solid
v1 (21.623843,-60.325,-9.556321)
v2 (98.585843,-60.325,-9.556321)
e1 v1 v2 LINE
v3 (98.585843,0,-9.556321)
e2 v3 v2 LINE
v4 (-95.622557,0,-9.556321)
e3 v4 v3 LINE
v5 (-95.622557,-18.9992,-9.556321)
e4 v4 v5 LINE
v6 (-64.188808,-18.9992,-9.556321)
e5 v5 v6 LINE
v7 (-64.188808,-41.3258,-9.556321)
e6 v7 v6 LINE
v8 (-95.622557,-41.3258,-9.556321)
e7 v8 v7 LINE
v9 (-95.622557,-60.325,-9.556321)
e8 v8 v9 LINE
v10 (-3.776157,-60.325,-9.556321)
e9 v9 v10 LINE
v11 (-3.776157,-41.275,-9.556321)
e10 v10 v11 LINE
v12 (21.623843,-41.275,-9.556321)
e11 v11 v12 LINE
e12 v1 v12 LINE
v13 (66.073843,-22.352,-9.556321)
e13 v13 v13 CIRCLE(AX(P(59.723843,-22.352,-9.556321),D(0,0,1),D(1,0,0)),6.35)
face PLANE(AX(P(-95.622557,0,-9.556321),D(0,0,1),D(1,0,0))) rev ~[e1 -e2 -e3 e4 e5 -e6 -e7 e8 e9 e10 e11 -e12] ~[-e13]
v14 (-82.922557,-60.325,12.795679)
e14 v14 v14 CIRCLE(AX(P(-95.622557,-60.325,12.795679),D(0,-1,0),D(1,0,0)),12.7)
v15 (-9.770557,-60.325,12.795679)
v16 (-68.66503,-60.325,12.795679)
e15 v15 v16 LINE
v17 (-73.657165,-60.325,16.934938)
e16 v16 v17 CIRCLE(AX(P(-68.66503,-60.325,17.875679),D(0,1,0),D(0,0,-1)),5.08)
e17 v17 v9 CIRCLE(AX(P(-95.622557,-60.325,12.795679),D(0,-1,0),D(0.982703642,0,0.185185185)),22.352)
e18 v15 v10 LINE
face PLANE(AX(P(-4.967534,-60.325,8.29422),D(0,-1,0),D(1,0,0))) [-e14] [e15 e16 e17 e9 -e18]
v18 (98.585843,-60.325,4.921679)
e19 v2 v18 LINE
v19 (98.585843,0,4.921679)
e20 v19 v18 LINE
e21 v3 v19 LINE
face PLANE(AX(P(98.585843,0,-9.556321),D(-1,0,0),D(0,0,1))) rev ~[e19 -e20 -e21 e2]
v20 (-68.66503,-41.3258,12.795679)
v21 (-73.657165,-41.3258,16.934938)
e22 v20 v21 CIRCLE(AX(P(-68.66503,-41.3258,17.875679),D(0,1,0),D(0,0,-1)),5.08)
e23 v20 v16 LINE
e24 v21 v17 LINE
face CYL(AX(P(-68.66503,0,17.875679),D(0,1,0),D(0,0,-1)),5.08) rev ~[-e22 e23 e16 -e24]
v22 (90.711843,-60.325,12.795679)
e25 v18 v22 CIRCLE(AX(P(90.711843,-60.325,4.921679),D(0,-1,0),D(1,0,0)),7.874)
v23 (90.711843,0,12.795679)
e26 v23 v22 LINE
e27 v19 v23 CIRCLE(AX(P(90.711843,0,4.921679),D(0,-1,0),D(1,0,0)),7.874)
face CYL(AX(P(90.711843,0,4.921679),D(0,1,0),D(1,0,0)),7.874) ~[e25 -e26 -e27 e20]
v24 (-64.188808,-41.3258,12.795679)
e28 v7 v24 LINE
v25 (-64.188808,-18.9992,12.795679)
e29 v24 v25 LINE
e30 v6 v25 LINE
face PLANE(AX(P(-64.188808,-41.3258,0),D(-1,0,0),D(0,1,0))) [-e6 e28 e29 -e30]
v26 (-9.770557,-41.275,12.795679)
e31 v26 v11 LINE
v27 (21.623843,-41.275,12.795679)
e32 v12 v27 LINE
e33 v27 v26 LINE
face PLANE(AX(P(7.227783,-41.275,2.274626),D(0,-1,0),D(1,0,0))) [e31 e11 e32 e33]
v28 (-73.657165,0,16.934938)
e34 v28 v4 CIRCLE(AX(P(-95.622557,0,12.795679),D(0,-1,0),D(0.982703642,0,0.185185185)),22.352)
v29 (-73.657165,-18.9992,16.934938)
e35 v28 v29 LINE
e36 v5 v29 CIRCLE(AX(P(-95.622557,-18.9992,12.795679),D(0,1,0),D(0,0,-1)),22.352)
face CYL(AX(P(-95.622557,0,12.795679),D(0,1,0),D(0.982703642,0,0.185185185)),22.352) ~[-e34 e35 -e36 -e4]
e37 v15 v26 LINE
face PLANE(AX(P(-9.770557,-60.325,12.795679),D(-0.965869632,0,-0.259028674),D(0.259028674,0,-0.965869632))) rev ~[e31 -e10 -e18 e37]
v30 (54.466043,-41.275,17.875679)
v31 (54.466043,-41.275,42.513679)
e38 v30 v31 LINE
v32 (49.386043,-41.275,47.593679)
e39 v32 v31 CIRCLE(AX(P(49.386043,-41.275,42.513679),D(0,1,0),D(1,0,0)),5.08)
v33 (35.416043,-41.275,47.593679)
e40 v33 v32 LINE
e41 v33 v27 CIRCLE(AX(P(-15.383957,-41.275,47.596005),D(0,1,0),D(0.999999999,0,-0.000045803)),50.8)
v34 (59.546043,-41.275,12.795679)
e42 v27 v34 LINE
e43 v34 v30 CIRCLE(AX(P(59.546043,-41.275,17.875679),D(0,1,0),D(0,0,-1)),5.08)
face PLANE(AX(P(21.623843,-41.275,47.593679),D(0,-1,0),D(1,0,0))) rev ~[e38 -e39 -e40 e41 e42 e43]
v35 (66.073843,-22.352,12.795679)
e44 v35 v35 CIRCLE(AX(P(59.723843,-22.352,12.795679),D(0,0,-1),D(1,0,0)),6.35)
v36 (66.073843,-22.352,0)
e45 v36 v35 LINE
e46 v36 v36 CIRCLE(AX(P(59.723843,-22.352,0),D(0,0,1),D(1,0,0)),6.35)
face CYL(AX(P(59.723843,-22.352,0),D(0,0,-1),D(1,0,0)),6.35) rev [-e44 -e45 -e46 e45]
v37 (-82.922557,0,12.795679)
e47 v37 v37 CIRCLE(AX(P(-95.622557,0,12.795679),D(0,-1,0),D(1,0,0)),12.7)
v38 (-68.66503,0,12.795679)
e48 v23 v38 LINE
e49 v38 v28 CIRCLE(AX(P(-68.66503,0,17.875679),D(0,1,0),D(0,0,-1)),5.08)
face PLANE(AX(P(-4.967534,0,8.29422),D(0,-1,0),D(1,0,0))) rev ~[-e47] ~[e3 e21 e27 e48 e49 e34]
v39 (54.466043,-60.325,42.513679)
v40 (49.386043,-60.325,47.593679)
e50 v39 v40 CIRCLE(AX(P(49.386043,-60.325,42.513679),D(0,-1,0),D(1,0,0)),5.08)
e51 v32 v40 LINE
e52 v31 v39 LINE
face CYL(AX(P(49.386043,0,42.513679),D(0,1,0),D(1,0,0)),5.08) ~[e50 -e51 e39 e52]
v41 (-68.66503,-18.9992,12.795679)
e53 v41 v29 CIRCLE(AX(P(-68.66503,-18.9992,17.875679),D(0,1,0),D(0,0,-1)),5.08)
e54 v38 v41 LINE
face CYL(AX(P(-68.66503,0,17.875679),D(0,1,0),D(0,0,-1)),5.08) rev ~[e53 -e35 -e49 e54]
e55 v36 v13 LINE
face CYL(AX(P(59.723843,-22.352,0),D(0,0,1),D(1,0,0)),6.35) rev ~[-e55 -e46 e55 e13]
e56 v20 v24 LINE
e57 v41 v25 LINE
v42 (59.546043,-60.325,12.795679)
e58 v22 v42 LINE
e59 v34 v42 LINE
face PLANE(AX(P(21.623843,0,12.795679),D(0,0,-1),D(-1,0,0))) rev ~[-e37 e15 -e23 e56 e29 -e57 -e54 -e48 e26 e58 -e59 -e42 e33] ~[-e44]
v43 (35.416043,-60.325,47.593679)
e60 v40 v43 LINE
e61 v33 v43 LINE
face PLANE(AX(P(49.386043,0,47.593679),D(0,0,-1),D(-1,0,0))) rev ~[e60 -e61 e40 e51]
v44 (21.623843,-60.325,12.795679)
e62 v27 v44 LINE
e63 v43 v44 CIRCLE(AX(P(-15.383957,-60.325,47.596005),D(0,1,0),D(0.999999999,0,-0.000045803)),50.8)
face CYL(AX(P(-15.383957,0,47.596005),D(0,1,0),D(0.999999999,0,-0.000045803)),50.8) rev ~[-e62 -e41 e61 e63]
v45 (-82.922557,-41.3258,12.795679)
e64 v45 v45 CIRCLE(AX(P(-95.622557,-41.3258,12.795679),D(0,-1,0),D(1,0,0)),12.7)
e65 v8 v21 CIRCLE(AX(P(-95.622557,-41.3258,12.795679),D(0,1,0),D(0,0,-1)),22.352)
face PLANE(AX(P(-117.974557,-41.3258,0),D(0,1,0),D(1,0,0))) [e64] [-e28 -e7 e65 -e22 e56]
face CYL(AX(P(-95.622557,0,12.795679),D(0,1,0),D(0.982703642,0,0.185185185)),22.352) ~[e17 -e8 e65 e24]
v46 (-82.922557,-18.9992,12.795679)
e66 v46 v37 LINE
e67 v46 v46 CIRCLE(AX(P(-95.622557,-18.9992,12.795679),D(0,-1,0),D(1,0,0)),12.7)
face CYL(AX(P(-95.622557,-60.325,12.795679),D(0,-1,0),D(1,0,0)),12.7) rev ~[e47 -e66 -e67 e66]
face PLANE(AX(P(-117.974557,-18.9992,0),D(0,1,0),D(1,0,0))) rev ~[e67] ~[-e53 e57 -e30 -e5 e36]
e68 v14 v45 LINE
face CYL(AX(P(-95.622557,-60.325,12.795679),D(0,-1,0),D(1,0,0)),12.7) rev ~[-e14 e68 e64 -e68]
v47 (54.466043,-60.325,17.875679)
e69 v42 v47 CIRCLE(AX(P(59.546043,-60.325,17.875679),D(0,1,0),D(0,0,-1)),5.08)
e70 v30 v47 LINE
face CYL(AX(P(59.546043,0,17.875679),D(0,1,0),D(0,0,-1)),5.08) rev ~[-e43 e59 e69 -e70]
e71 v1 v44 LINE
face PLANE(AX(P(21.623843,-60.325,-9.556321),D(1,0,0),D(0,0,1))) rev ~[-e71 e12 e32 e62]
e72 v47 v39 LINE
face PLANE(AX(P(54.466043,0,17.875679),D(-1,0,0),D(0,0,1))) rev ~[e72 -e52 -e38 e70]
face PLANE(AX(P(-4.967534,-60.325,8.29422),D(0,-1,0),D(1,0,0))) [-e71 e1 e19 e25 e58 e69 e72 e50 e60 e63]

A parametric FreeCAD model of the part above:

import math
import FreeCAD as App
import Part
import Sketcher

V = App.Vector
Q = App.Units.Quantity

doc = App.newDocument("Part")
body = doc.addObject("PartDesign::Body", "Body")

sketch1 = body.newObject("Sketcher::SketchObject", "Sketch")
sketch1.AttachmentSupport = (doc.getObject("XZ_Plane"), [""])
sketch1.MapMode = "FlatFace"
sketch1.addGeometry([
    Part.ArcOfCircle(Part.Circle(V(-68.66503, 17.875679, 0), V(0, 0, 1), 5.08), math.radians(-169.328071), math.radians(-90)),
    Part.ArcOfCircle(Part.Circle(V(-95.622557, 12.795679, 0), V(0, 0, 1), 22.352), math.radians(10.671929), math.radians(270)),
    Part.LineSegment(V(-95.622557, -9.556321, 0), V(98.585843, -9.556321, 0)),
    Part.LineSegment(V(98.585843, -9.556321, 0), V(98.585843, 4.921679, 0)),
    Part.ArcOfCircle(Part.Circle(V(90.711843, 4.921679, 0), V(0, 0, 1), 7.874), math.radians(0), math.radians(90)),
    Part.LineSegment(V(90.711843, 12.795679, 0), V(59.546043, 12.795679, 0)),
    Part.ArcOfCircle(Part.Circle(V(59.546043, 17.875679, 0), V(0, 0, 1), 5.08), math.radians(180), math.radians(270)),
    Part.LineSegment(V(54.466043, 17.875679, 0), V(54.466043, 42.513679, 0)),
    Part.ArcOfCircle(Part.Circle(V(49.386043, 42.513679, 0), V(0, 0, 1), 5.08), math.radians(0), math.radians(90)),
    Part.LineSegment(V(49.386043, 47.593679, 0), V(35.416043, 47.593679, 0)),
    Part.ArcOfCircle(Part.Circle(V(-15.383957, 47.596005, 0), V(0, 0, 1), 50.8), math.radians(-43.239209), math.radians(-0.002624)),
    Part.LineSegment(V(21.623843, 12.795679, 0), V(-68.66503, 12.795679, 0)),
], False)
sketch1.addConstraint([
    Sketcher.Constraint("Tangent", 0, 1, 1, 1),
    Sketcher.Constraint("Tangent", 1, 2, 2, 1),
    Sketcher.Constraint("Coincident", 2, 2, 3, 1),
    Sketcher.Constraint("Tangent", 3, 2, 4, 1),
    Sketcher.Constraint("Tangent", 4, 2, 5, 1),
    Sketcher.Constraint("Tangent", 5, 2, 6, 2),
    Sketcher.Constraint("Tangent", 6, 1, 7, 1),
    Sketcher.Constraint("Tangent", 7, 2, 8, 1),
    Sketcher.Constraint("Tangent", 8, 2, 9, 1),
    Sketcher.Constraint("Coincident", 9, 2, 10, 2),
    Sketcher.Constraint("Coincident", 10, 1, 11, 1),
    Sketcher.Constraint("Tangent", 11, 2, 0, 2),
    Sketcher.Constraint("Horizontal", 2),
    Sketcher.Constraint("Vertical", 3),
    Sketcher.Constraint("Horizontal", 5),
    Sketcher.Constraint("Vertical", 7),
    Sketcher.Constraint("Horizontal", 9),
    Sketcher.Constraint("Horizontal", 11),
    Sketcher.Constraint("Equal", 0, 6),
    Sketcher.Constraint("Equal", 6, 8),
    Sketcher.Constraint("Horizontal", 0, 3, 6, 3),
    Sketcher.Constraint("Horizontal", 1, 3, 4, 2),
    Sketcher.Constraint("Radius", 10, Q("2 in")),
    Sketcher.Constraint("Radius", 0, Q("0.2 in")),
    Sketcher.Constraint("Radius", 1, Q("0.88 in")),
    Sketcher.Constraint("Radius", 4, Q("0.31 in")),
    Sketcher.Constraint("DistanceX", 9, 2, 9, 1, Q("0.55 in")),
    Sketcher.Constraint("DistanceY", 7, 1, 7, 2, Q("0.97 in")),
    Sketcher.Constraint("DistanceX", 2, 1, 2, 2, Q("7.646 in")),
    Sketcher.Constraint("DistanceX", 5, 2, 5, 1, Q("1.227 in")),
    Sketcher.Constraint("DistanceX", 10, 1, 6, 1, Q("1.293 in")),
    Sketcher.Constraint("DistanceX", 0, 3, -1, 1, Q("68.66503 mm")),
    Sketcher.Constraint("DistanceY", -1, 1, 0, 3, Q("17.875679 mm")),
])
pad1 = body.newObject("PartDesign::Pad", "Pad")
pad1.Profile = sketch1
pad1.Length = Q("2.375 in")

sketch2 = body.newObject("Sketcher::SketchObject", "Sketch001")
sketch2.AttachmentSupport = (doc.getObject("XZ_Plane"), [""])
sketch2.MapMode = "FlatFace"
sketch2.AttachmentOffset = App.Placement(V(0, 0, 2.375 * 25.4), App.Rotation())
sketch2.addGeometry(Part.Circle(V(-95.622557, 12.795679, 0), V(0, 0, 1), 12.7), False)
sketch2.addConstraint([
    Sketcher.Constraint("Diameter", 0, Q("1 in")),
    Sketcher.Constraint("DistanceY", -1, 1, 0, 3, Q("12.795679 mm")),
    Sketcher.Constraint("DistanceX", 0, 3, -1, 1, Q("95.622557 mm")),
])
pocket1 = body.newObject("PartDesign::Pocket", "Pocket")
pocket1.Profile = sketch2
pocket1.Type = "ThroughAll"

sketch3 = body.newObject("Sketcher::SketchObject", "Sketch002")
sketch3.AttachmentSupport = (doc.getObject("XZ_Plane"), [""])
sketch3.MapMode = "FlatFace"
sketch3.AttachmentOffset = App.Placement(V(0, 0, 2.375 * 25.4), App.Rotation())
sketch3.addGeometry([
    Part.LineSegment(V(21.623843, 12.795679, 0), V(-9.770557, 12.795679, 0)),
    Part.LineSegment(V(-9.770557, 12.795679, 0), V(-3.776157, -9.556321, 0)),
    Part.LineSegment(V(-3.776157, -9.556321, 0), V(21.623843, -9.556321, 0)),
    Part.LineSegment(V(21.623843, -9.556321, 0), V(21.623843, 12.795679, 0)),
], False)
sketch3.addConstraint([
    Sketcher.Constraint("Coincident", 0, 2, 1, 1),
    Sketcher.Constraint("Coincident", 1, 2, 2, 1),
    Sketcher.Constraint("Coincident", 2, 2, 3, 1),
    Sketcher.Constraint("Coincident", 3, 2, 0, 1),
    Sketcher.Constraint("Horizontal", 0),
    Sketcher.Constraint("Horizontal", 2),
    Sketcher.Constraint("Vertical", 3),
    Sketcher.Constraint("DistanceX", 2, 1, 2, 2, Q("1 in")),
    Sketcher.Constraint("DistanceY", 3, 1, 3, 2, Q("0.88 in")),
    Sketcher.Constraint("DistanceX", 0, 2, 0, 1, Q("1.236 in")),
    Sketcher.Constraint("DistanceY", -1, 1, 0, 2, Q("12.795679 mm")),
    Sketcher.Constraint("DistanceX", 0, 2, -1, 1, Q("9.770557 mm")),
])
pocket2 = body.newObject("PartDesign::Pocket", "Pocket001")
pocket2.Profile = sketch3
pocket2.Length = Q("0.75 in")

sketch4 = body.newObject("Sketcher::SketchObject", "Sketch003")
sketch4.AttachmentSupport = (doc.getObject("XY_Plane"), [""])
sketch4.MapMode = "FlatFace"
sketch4.AttachmentOffset = App.Placement(V(0, 0, 47.593679), App.Rotation())
sketch4.addGeometry([
    Part.LineSegment(V(21.623843, 0, 0), V(21.623843, -41.275, 0)),
    Part.LineSegment(V(21.623843, -41.275, 0), V(59.546043, -41.275, 0)),
    Part.LineSegment(V(59.546043, -41.275, 0), V(59.546043, 0, 0)),
    Part.LineSegment(V(59.546043, 0, 0), V(21.623843, 0, 0)),
], False)
sketch4.addConstraint([
    Sketcher.Constraint("Coincident", 0, 2, 1, 1),
    Sketcher.Constraint("Coincident", 1, 2, 2, 1),
    Sketcher.Constraint("Coincident", 2, 2, 3, 1),
    Sketcher.Constraint("Coincident", 3, 2, 0, 1),
    Sketcher.Constraint("Vertical", 0),
    Sketcher.Constraint("Horizontal", 1),
    Sketcher.Constraint("Vertical", 2),
    Sketcher.Constraint("Horizontal", 3),
    Sketcher.Constraint("PointOnObject", 2, 2, -1),
    Sketcher.Constraint("DistanceX", 1, 1, 1, 2, Q("1.493 in")),
    Sketcher.Constraint("DistanceY", 0, 2, 0, 1, Q("1.625 in")),
    Sketcher.Constraint("DistanceX", -1, 1, 0, 2, Q("21.623843 mm")),
])
pocket3 = body.newObject("PartDesign::Pocket", "Pocket002")
pocket3.Profile = sketch4
pocket3.Length = Q("1.37 in")

sketch5 = body.newObject("Sketcher::SketchObject", "Sketch004")
sketch5.AttachmentSupport = (doc.getObject("XY_Plane"), [""])
sketch5.MapMode = "FlatFace"
sketch5.addGeometry([
    Part.Circle(V(59.723843, -22.352, 0), V(0, 0, 1), 6.35),
    Part.LineSegment(V(-117.974557, -18.9992, 0), V(-117.974557, -41.3258, 0)),
    Part.LineSegment(V(-117.974557, -41.3258, 0), V(-64.188808, -41.3258, 0)),
    Part.LineSegment(V(-64.188808, -41.3258, 0), V(-64.188808, -18.9992, 0)),
    Part.LineSegment(V(-64.188808, -18.9992, 0), V(-117.974557, -18.9992, 0)),
], False)
sketch5.addConstraint([
    Sketcher.Constraint("Coincident", 1, 2, 2, 1),
    Sketcher.Constraint("Coincident", 2, 2, 3, 1),
    Sketcher.Constraint("Coincident", 3, 2, 4, 1),
    Sketcher.Constraint("Coincident", 4, 2, 1, 1),
    Sketcher.Constraint("Vertical", 1),
    Sketcher.Constraint("Horizontal", 2),
    Sketcher.Constraint("Vertical", 3),
    Sketcher.Constraint("Horizontal", 4),
    Sketcher.Constraint("Diameter", 0, Q("0.5 in")),
    Sketcher.Constraint("DistanceY", 1, 2, 1, 1, Q("0.879 in")),
    Sketcher.Constraint("DistanceY", 0, 3, -1, 1, Q("0.88 in")),
    Sketcher.Constraint("DistanceY", 1, 2, -1, 1, Q("1.627 in")),
    Sketcher.Constraint("DistanceX", 1, 2, 0, 3, Q("6.996 in")),
    Sketcher.Constraint("DistanceX", 2, 1, 2, 2, Q("53.785749 mm")),
    Sketcher.Constraint("DistanceX", 2, 2, -1, 1, Q("64.188808 mm")),
])
pocket4 = body.newObject("PartDesign::Pocket", "Pocket003")
pocket4.Profile = sketch5
pocket4.Type = "ThroughAll"
pocket4.Midplane = True

doc.recompute()
